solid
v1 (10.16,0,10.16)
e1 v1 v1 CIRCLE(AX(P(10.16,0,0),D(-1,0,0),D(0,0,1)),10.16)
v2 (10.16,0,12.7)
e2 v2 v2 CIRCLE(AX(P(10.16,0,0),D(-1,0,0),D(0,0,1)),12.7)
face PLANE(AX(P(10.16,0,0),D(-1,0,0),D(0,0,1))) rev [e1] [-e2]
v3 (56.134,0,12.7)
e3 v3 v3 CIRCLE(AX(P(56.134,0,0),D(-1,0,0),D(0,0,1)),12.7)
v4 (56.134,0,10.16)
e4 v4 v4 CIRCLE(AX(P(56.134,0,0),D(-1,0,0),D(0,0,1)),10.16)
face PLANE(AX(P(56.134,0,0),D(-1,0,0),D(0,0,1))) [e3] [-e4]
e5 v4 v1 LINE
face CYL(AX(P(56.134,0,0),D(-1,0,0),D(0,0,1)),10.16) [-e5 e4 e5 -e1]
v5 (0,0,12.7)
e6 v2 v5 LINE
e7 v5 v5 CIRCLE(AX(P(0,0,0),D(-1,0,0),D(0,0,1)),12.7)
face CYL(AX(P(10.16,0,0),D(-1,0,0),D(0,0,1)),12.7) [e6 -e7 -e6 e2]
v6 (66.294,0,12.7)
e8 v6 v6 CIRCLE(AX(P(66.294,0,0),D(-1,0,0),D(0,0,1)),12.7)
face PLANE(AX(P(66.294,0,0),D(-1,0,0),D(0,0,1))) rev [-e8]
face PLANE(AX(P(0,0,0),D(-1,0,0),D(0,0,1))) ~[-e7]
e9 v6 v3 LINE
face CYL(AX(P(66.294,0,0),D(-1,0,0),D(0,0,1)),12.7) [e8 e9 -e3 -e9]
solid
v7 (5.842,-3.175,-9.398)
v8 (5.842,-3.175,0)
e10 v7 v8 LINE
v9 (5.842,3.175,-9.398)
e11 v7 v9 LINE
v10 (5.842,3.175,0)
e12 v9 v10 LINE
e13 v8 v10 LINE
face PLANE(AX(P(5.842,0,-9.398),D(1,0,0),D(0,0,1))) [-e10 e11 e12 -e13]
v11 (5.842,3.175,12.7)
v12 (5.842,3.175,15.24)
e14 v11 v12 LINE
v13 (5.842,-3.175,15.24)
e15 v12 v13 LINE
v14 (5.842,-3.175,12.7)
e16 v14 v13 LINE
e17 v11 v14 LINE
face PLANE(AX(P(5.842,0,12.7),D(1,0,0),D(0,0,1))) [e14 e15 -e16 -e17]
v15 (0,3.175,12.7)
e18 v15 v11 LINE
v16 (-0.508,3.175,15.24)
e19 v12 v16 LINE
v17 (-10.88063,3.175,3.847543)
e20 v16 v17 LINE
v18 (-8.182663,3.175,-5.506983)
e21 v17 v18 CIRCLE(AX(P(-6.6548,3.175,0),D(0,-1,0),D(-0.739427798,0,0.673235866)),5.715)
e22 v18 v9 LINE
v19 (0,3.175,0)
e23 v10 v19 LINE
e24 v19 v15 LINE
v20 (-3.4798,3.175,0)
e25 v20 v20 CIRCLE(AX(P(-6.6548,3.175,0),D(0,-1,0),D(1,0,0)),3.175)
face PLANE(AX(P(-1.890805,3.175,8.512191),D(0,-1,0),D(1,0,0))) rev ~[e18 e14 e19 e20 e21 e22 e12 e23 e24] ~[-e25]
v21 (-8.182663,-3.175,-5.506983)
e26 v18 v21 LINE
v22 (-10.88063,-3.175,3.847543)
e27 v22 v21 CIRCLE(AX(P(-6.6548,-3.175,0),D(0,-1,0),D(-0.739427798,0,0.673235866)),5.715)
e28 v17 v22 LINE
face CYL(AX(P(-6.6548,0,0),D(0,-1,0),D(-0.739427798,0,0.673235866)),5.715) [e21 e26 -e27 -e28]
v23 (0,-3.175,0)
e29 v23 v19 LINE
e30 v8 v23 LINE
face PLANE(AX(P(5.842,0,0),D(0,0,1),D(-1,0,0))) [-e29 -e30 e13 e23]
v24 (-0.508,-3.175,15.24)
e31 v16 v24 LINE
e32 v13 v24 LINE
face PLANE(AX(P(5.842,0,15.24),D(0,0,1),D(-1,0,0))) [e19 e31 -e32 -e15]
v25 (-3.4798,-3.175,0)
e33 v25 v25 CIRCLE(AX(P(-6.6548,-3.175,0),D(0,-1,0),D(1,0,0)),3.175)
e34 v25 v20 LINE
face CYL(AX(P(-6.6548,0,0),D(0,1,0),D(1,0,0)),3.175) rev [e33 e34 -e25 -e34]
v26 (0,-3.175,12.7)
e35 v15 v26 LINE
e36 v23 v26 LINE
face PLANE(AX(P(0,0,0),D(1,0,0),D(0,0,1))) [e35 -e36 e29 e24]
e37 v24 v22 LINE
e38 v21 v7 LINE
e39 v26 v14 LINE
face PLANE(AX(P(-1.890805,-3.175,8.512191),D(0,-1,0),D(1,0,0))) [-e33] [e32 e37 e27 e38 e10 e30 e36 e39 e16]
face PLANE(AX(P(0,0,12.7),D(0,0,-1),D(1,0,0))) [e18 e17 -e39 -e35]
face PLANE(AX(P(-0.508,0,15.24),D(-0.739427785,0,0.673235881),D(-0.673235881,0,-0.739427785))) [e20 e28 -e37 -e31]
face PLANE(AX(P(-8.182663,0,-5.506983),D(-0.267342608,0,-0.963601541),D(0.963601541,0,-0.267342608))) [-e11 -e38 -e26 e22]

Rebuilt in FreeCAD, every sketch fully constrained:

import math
import FreeCAD as App
import Part
import Sketcher
from FreeCAD import Vector
Q = App.Units.Quantity

doc = App.newDocument("Part")
params = doc.addObject("Spreadsheet::Sheet", "Params")
for row, (alias, value) in enumerate([
    ("sketch1_width", "0.4 in"),
    ("sketch1_height", "0.5 in"),
    ("sketch1_height2", "0.1 in"),
    ("sketch1_width2", "1.81 in"),
    ("revolution_angle", "360 deg"),
    ("sketch2_diameter", "0.25 in"),
    ("sketch2_height", "0.5 in"),
    ("sketch2_height2", "0.1 in"),
    ("sketch2_radius", "0.225 in"),
    ("sketch2_width", "0.23 in"),
    ("pad1_length", "0.25 in"),
], start=1):
    params.set(f"A{row}", alias)
    params.set(f"B{row}", "=" + value)
    params.setAlias(f"B{row}", alias)

body = doc.addObject("PartDesign::Body", "Body")

sketch1 = body.newObject("Sketcher::SketchObject", "Sketch")
sketch1.AttachmentSupport = (doc.getObject("XZ_Plane"), [""])
sketch1.MapMode = "FlatFace"
sketch1.addGeometry(Part.LineSegment(Vector(66.3, 0, 0), Vector(66.3, 12.7, 0)), False)
sketch1.addGeometry(Part.LineSegment(Vector(66.3, 12.7, 0), Vector(56.1, 12.7, 0)), False)
sketch1.addGeometry(Part.LineSegment(Vector(56.1, 12.7, 0), Vector(56.1, 10.2, 0)), False)
sketch1.addGeometry(Part.LineSegment(Vector(56.1, 10.2, 0), Vector(10.2, 10.2, 0)), False)
sketch1.addGeometry(Part.LineSegment(Vector(10.2, 10.2, 0), Vector(10.2, 12.7, 0)), False)
sketch1.addGeometry(Part.LineSegment(Vector(10.2, 12.7, 0), Vector(0, 12.7, 0)), False)
sketch1.addGeometry(Part.LineSegment(Vector(0, 12.7, 0), Vector(0, 0, 0)), False)
sketch1.addGeometry(Part.LineSegment(Vector(0, 0, 0), Vector(66.3, 0, 0)), False)
sketch1.addConstraint(Sketcher.Constraint("Coincident", 0, 2, 1, 1))
sketch1.addConstraint(Sketcher.Constraint("Coincident", 1, 2, 2, 1))
sketch1.addConstraint(Sketcher.Constraint("Coincident", 2, 2, 3, 1))
sketch1.addConstraint(Sketcher.Constraint("Coincident", 3, 2, 4, 1))
sketch1.addConstraint(Sketcher.Constraint("Coincident", 4, 2, 5, 1))
sketch1.addConstraint(Sketcher.Constraint("Coincident", 5, 2, 6, 1))
sketch1.addConstraint(Sketcher.Constraint("Coincident", 6, 2, 7, 1))
sketch1.addConstraint(Sketcher.Constraint("Coincident", 7, 2, 0, 1))
sketch1.addConstraint(Sketcher.Constraint("Vertical", 0))
sketch1.addConstraint(Sketcher.Constraint("Horizontal", 1))
sketch1.addConstraint(Sketcher.Constraint("Vertical", 2))
sketch1.addConstraint(Sketcher.Constraint("Horizontal", 3))
sketch1.addConstraint(Sketcher.Constraint("Vertical", 4))
sketch1.addConstraint(Sketcher.Constraint("Horizontal", 5))
sketch1.addConstraint(Sketcher.Constraint("Vertical", 6))
sketch1.addConstraint(Sketcher.Constraint("Horizontal", 7))
sketch1.addConstraint(Sketcher.Constraint("Coincident", 6, 2, -1, 1))
sketch1.addConstraint(Sketcher.Constraint("Horizontal", 1, 2, 4, 2))
sketch1.addConstraint(Sketcher.Constraint("Equal", 1, 5))
sketch1.addConstraint(Sketcher.Constraint("DistanceX", 1, 2, 1, 1, Q("0.4 in")))
sketch1.addConstraint(Sketcher.Constraint("DistanceY", 0, 1, 0, 2, Q("0.5 in")))
sketch1.addConstraint(Sketcher.Constraint("DistanceY", 2, 2, 2, 1, Q("0.1 in")))
sketch1.addConstraint(Sketcher.Constraint("DistanceX", 3, 2, 3, 1, Q("1.81 in")))
sketch1.setExpression("Constraints[19]", "Params.sketch1_width")
sketch1.setExpression("Constraints[20]", "Params.sketch1_height")
sketch1.setExpression("Constraints[21]", "Params.sketch1_height2")
sketch1.setExpression("Constraints[22]", "Params.sketch1_width2")
revolution = body.newObject("PartDesign::Revolution", "Revolution")
revolution.Profile = sketch1
revolution.ReferenceAxis = (sketch1, ["H_Axis"])
revolution.setExpression("Angle", "Params.revolution_angle")
body2 = doc.addObject("PartDesign::Body", "Body001")

sketch2 = body2.newObject("Sketcher::SketchObject", "Sketch001")
sketch2.AttachmentSupport = (doc.getObject("XZ_Plane001"), [""])
sketch2.MapMode = "FlatFace"
sketch2.addGeometry(Part.LineSegment(Vector(0, 0, 0), Vector(0, 12.7, 0)), False)
sketch2.addGeometry(Part.LineSegment(Vector(0, 12.7, 0), Vector(5.8, 12.7, 0)), False)
sketch2.addGeometry(Part.LineSegment(Vector(5.8, 12.7, 0), Vector(5.8, 15.2, 0)), False)
sketch2.addGeometry(Part.LineSegment(Vector(5.8, 15.2, 0), Vector(-0.5, 15.2, 0)), False)
sketch2.addGeometry(Part.LineSegment(Vector(-0.5, 15.2, 0), Vector(-10.9, 3.8, 0)), False)
sketch2.addGeometry(Part.ArcOfCircle(Part.Circle(Vector(-6.7, 0, 0), Vector(0, 0, 1), 5.7), math.radians(138), math.radians(254)), False)
sketch2.addGeometry(Part.LineSegment(Vector(-8.2, -5.5, 0), Vector(5.8, -9.4, 0)), False)
sketch2.addGeometry(Part.LineSegment(Vector(5.8, -9.4, 0), Vector(5.8, 0, 0)), False)
sketch2.addGeometry(Part.LineSegment(Vector(5.8, 0, 0), Vector(0, 0, 0)), False)
sketch2.addGeometry(Part.Circle(Vector(-6.7, 0, 0), Vector(0, 0, 1), 3.2), False)
sketch2.addConstraint(Sketcher.Constraint("Coincident", 0, 2, 1, 1))
sketch2.addConstraint(Sketcher.Constraint("Coincident", 1, 2, 2, 1))
sketch2.addConstraint(Sketcher.Constraint("Coincident", 2, 2, 3, 1))
sketch2.addConstraint(Sketcher.Constraint("Coincident", 3, 2, 4, 1))
sketch2.addConstraint(Sketcher.Constraint("Tangent", 4, 2, 5, 1))
sketch2.addConstraint(Sketcher.Constraint("Tangent", 5, 2, 6, 1))
sketch2.addConstraint(Sketcher.Constraint("Coincident", 6, 2, 7, 1))
sketch2.addConstraint(Sketcher.Constraint("Coincident", 7, 2, 8, 1))
sketch2.addConstraint(Sketcher.Constraint("Coincident", 8, 2, 0, 1))
sketch2.addConstraint(Sketcher.Constraint("Vertical", 0))
sketch2.addConstraint(Sketcher.Constraint("Horizontal", 1))
sketch2.addConstraint(Sketcher.Constraint("Vertical", 2))
sketch2.addConstraint(Sketcher.Constraint("Horizontal", 3))
sketch2.addConstraint(Sketcher.Constraint("Vertical", 7))
sketch2.addConstraint(Sketcher.Constraint("Horizontal", 8))
sketch2.addConstraint(Sketcher.Constraint("Coincident", 8, 2, -1, 1))
sketch2.addConstraint(Sketcher.Constraint("Coincident", 9, 3, 5, 3))
sketch2.addConstraint(Sketcher.Constraint("PointOnObject", 5, 3, -1))
sketch2.addConstraint(Sketcher.Constraint("Vertical", 2, 2, 6, 2))
sketch2.addConstraint(Sketcher.Constraint("Diameter", 9, Q("0.25 in")))
sketch2.addConstraint(Sketcher.Constraint("DistanceY", 0, 1, 0, 2, Q("0.5 in")))
sketch2.addConstraint(Sketcher.Constraint("DistanceY", 2, 1, 2, 2, Q("0.1 in")))
sketch2.addConstraint(Sketcher.Constraint("Radius", 5, Q("0.225 in")))
sketch2.addConstraint(Sketcher.Constraint("DistanceX", 1, 1, 1, 2, Q("0.23 in")))
sketch2.addConstraint(Sketcher.Constraint("DistanceX", 3, 2, 3, 1, Q("0.25 in")))
sketch2.addConstraint(Sketcher.Constraint("DistanceY", 7, 1, 7, 2, Q("0.37 in")))
sketch2.addConstraint(Sketcher.Constraint("DistanceX", 5, 3, -1, 1, Q("0.262 in")))
sketch2.setExpression("Constraints[19]", "Params.sketch2_diameter")
sketch2.setExpression("Constraints[20]", "Params.sketch2_height")
sketch2.setExpression("Constraints[21]", "Params.sketch2_height2")
sketch2.setExpression("Constraints[22]", "Params.sketch2_radius")
sketch2.setExpression("Constraints[23]", "Params.sketch2_width")
pad1 = body2.newObject("PartDesign::Pad", "Pad")
pad1.Profile = sketch2
pad1.setExpression("Length", "Params.pad1_length")
pad1.Midplane = True

doc.recompute()
